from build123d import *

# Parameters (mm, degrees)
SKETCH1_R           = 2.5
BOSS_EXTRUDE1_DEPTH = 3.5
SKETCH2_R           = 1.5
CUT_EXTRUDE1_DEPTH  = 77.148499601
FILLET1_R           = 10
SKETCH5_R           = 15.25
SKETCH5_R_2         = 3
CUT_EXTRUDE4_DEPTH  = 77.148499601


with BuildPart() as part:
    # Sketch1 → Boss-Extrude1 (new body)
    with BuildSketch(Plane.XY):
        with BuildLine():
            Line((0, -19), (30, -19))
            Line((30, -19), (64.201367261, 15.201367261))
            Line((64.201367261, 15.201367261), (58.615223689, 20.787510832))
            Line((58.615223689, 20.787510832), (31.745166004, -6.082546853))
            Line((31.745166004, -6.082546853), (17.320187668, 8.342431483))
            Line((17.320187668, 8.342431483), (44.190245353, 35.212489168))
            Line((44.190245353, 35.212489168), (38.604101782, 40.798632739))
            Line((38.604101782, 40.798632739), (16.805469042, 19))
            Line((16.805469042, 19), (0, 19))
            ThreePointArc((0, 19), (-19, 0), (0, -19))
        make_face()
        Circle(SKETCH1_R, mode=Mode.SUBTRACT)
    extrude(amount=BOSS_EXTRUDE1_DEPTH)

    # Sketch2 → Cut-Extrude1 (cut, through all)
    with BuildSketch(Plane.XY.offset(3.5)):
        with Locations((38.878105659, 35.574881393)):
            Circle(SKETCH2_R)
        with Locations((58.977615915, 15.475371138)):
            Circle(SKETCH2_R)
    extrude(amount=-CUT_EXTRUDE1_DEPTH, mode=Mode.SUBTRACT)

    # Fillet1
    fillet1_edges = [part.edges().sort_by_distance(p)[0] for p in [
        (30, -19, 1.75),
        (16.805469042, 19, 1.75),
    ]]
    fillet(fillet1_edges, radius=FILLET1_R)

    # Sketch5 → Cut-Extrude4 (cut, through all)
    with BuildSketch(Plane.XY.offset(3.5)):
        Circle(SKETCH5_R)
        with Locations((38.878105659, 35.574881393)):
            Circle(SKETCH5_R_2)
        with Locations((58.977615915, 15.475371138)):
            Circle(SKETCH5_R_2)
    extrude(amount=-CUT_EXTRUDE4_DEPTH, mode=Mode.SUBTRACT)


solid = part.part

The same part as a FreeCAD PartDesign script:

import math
import FreeCAD as App
import Part
import Sketcher

V = App.Vector
Q = App.Units.Quantity


def edges_at(feature, points):
    """Names of the edges that pass closest to the given points."""
    edges = feature.Shape.Edges
    near = lambda p: min(range(len(edges)), key=lambda i: edges[i].distToShape(Part.Vertex(*p))[0])
    return sorted({f"Edge{near(p) + 1}" for p in points})

doc = App.newDocument("Part")
body = doc.addObject("PartDesign::Body", "Body")

# Sketch on XY plane
sketch1 = body.newObject("Sketcher::SketchObject", "Sketch")
sketch1.AttachmentSupport = (doc.getObject("XY_Plane"), [""])
sketch1.MapMode = "FlatFace"
sketch1.addGeometry([
    Part.LineSegment(V(0, -19, 0), V(30, -19, 0)),  # 0
    Part.LineSegment(V(30, -19, 0), V(64.2, 15.2, 0)),  # 1
    Part.LineSegment(V(64.2, 15.2, 0), V(58.6, 20.8, 0)),  # 2
    Part.LineSegment(V(58.6, 20.8, 0), V(31.7, -6.1, 0)),  # 3
    Part.LineSegment(V(31.7, -6.1, 0), V(17.3, 8.3, 0)),  # 4
    Part.LineSegment(V(17.3, 8.3, 0), V(44.2, 35.2, 0)),  # 5
    Part.LineSegment(V(44.2, 35.2, 0), V(38.6, 40.8, 0)),  # 6
    Part.LineSegment(V(38.6, 40.8, 0), V(16.8, 19, 0)),  # 7
    Part.LineSegment(V(16.8, 19, 0), V(0, 19, 0)),  # 8
    Part.ArcOfCircle(Part.Circle(V(0, 0, 0), V(0, 0, 1), 19), math.radians(90), math.radians(270)),  # 9
    Part.Circle(V(0, 0, 0), V(0, 0, 1), 2.5),  # 10
], False)
sketch1.addConstraint([
    Sketcher.Constraint("Coincident", 0, 2, 1, 1),
    Sketcher.Constraint("Coincident", 1, 2, 2, 1),
    Sketcher.Constraint("Coincident", 2, 2, 3, 1),
    Sketcher.Constraint("Coincident", 3, 2, 4, 1),
    Sketcher.Constraint("Coincident", 4, 2, 5, 1),
    Sketcher.Constraint("Coincident", 5, 2, 6, 1),
    Sketcher.Constraint("Coincident", 6, 2, 7, 1),
    Sketcher.Constraint("Coincident", 7, 2, 8, 1),
    Sketcher.Constraint("Tangent", 8, 2, 9, 1),
    Sketcher.Constraint("Tangent", 9, 2, 0, 1),
    Sketcher.Constraint("Horizontal", 0),
    Sketcher.Constraint("Horizontal", 8),
    Sketcher.Constraint("Coincident", 9, 3, -1, 1),
    Sketcher.Constraint("Coincident", 10, 3, -1, 1),
    Sketcher.Constraint("Perpendicular", 1, 2),
    Sketcher.Constraint("Perpendicular", 2, 3),
    Sketcher.Constraint("Perpendicular", 3, 4),
    Sketcher.Constraint("Perpendicular", 4, 5),
    Sketcher.Constraint("Perpendicular", 5, 6),
    Sketcher.Constraint("Perpendicular", 6, 7),
    Sketcher.Constraint("Equal", 3, 5),
    Sketcher.Constraint("Equal", 2, 6),
    Sketcher.Constraint("Diameter", 10, 5.0),
    Sketcher.Constraint("Radius", 9, 19.0),
    Sketcher.Constraint("DistanceX", 0, 1, 0, 2, 30.0),
    Sketcher.Constraint("Angle", 1, Q("45 deg")),
    Sketcher.Constraint("Distance", 3, 38.0),
    Sketcher.Constraint("Distance", 2, 7.9),
    Sketcher.Constraint("Distance", 4, 20.4),
    Sketcher.Constraint("DistanceX", -1, 1, 6, 2, 38.604102),
])
pad1 = body.newObject("PartDesign::Pad", "Pad")
pad1.Profile = sketch1
pad1.Length = 3.5

# Sketch on XY plane
sketch2 = body.newObject("Sketcher::SketchObject", "Sketch001")
sketch2.AttachmentSupport = (doc.getObject("XY_Plane"), [""])
sketch2.MapMode = "FlatFace"
sketch2.AttachmentOffset = App.Placement(V(0, 0, 3.5), App.Rotation())
sketch2.addGeometry([
    Part.Circle(V(38.9, 35.6, 0), V(0, 0, 1), 1.5),
    Part.Circle(V(59, 15.5, 0), V(0, 0, 1), 1.5),
], False)
sketch2.addConstraint([
    Sketcher.Constraint("Equal", 0, 1),
    Sketcher.Constraint("Diameter", 0, 3.0),
    Sketcher.Constraint("DistanceY", -1, 1, 0, 3, 35.574881),
    Sketcher.Constraint("DistanceY", -1, 1, 1, 3, 15.475371),
    Sketcher.Constraint("DistanceX", 0, 3, 1, 3, 20.09951),
    Sketcher.Constraint("DistanceX", -1, 1, 0, 3, 38.878106),
])
pocket1 = body.newObject("PartDesign::Pocket", "Pocket")
pocket1.Profile = sketch2
pocket1.Type = "ThroughAll"
doc.recompute()

fillet = body.newObject("PartDesign::Fillet", "Fillet")
fillet.Base = (pocket1, edges_at(pocket1, [(30, -19, 1.75), (16.805, 19, 1.75)]))
fillet.Radius = 10

# Sketch on XY plane
sketch3 = body.newObject("Sketcher::SketchObject", "Sketch002")
sketch3.AttachmentSupport = (doc.getObject("XY_Plane"), [""])
sketch3.MapMode = "FlatFace"
sketch3.AttachmentOffset = App.Placement(V(0, 0, 3.5), App.Rotation())
sketch3.addGeometry([
    Part.Circle(V(0, 0, 0), V(0, 0, 1), 15.2),
    Part.Circle(V(38.9, 35.6, 0), V(0, 0, 1), 3),
    Part.Circle(V(59, 15.5, 0), V(0, 0, 1), 3),
], False)
sketch3.addConstraint([
    Sketcher.Constraint("Coincident", 0, 3, -1, 1),
    Sketcher.Constraint("Equal", 1, 2),
    Sketcher.Constraint("Diameter", 1, 6.0),
    Sketcher.Constraint("Diameter", 0, 30.5),
    Sketcher.Constraint("DistanceY", -1, 1, 1, 3, 35.574881),
    Sketcher.Constraint("DistanceY", -1, 1, 2, 3, 15.475371),
    Sketcher.Constraint("DistanceX", 1, 3, 2, 3, 20.09951),
    Sketcher.Constraint("DistanceX", -1, 1, 1, 3, 38.878106),
])
pocket2 = body.newObject("PartDesign::Pocket", "Pocket001")
pocket2.Profile = sketch3
pocket2.Type = "ThroughAll"

doc.recompute()
